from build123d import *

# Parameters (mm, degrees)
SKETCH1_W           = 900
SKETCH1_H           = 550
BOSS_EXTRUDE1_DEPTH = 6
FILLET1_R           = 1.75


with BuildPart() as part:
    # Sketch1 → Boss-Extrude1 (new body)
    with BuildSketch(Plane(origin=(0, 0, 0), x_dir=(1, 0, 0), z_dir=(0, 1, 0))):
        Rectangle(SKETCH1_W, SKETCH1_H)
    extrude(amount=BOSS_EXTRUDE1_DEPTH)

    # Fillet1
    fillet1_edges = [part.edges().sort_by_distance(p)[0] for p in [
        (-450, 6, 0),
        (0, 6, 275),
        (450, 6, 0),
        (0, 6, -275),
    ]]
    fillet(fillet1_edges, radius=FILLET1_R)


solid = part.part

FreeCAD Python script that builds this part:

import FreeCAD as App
import Part
import Sketcher
Q = App.Units.Quantity


def edges_at(feature, points):
    """Names of the edges that pass closest to the given points."""
    edges = feature.Shape.Edges
    near = lambda p: min(range(len(edges)), key=lambda i: edges[i].distToShape(Part.Vertex(*p))[0])
    return sorted({f"Edge{near(p) + 1}" for p in points})


def add_polygon(sketch, points):
    """Adds a closed chain of lines whose ends are joined by coincident constraints."""
    first, n = sketch.GeometryCount, len(points)
    for a, b in zip(points, points[1:] + points[:1]):
        sketch.addGeometry(Part.LineSegment(App.Vector(*a, 0), App.Vector(*b, 0)), False)
    for i in range(n):
        sketch.addConstraint(Sketcher.Constraint("Coincident", first + i, 2, first + (i + 1) % n, 1))

doc = App.newDocument("Part")
params = doc.addObject("Spreadsheet::Sheet", "Params")
for row, (alias, value) in enumerate([
    ("sketch1_width", "900 mm"),
    ("sketch1_height", "550 mm"),
    ("pad1_length", "6 mm"),
    ("fillet_radius", "1.75 mm"),
], start=1):
    params.set(f"A{row}", alias)
    params.set(f"B{row}", "=" + value)
    params.setAlias(f"B{row}", alias)

body = doc.addObject("PartDesign::Body", "Body")

# Sketch on XZ plane
sketch1 = doc.addObject("Sketcher::SketchObject", "Sketch")
body.addObject(sketch1)
sketch1.AttachmentSupport = (doc.XZ_Plane, [""])
sketch1.MapMode = "FlatFace"
add_polygon(sketch1, [(-450, -275), (-450, 275), (450, 275), (450, -275)])  # lines 0-3
sketch1.addConstraint([
    Sketcher.Constraint("Vertical", 0),
    Sketcher.Constraint("Horizontal", 1),
    Sketcher.Constraint("Vertical", 2),
    Sketcher.Constraint("Horizontal", 3),
    Sketcher.Constraint("Symmetric", 0, 2, 2, 2, -1, 1),
    Sketcher.Constraint("DistanceX", 1, 1, 1, 2, Q("900 mm")),
    Sketcher.Constraint("DistanceY", 0, 1, 0, 2, Q("550 mm")),
])
sketch1.setExpression("Constraints[9]", "Params.sketch1_width")
sketch1.setExpression("Constraints[10]", "Params.sketch1_height")
pad1 = doc.addObject("PartDesign::Pad", "Pad")
body.addObject(pad1)
pad1.Profile = sketch1
pad1.setExpression("Length", "Params.pad1_length")
pad1.Reversed = True
doc.recompute()

fillet = doc.addObject("PartDesign::Fillet", "Fillet")
body.addObject(fillet)
fillet.Base = (pad1, edges_at(pad1, [
    (-450, 6, 0),
    (0, 6, 275),
    (450, 6, 0),
    (0, 6, -275),
]))
fillet.setExpression("Radius", "Params.fillet_radius")

doc.recompute()
